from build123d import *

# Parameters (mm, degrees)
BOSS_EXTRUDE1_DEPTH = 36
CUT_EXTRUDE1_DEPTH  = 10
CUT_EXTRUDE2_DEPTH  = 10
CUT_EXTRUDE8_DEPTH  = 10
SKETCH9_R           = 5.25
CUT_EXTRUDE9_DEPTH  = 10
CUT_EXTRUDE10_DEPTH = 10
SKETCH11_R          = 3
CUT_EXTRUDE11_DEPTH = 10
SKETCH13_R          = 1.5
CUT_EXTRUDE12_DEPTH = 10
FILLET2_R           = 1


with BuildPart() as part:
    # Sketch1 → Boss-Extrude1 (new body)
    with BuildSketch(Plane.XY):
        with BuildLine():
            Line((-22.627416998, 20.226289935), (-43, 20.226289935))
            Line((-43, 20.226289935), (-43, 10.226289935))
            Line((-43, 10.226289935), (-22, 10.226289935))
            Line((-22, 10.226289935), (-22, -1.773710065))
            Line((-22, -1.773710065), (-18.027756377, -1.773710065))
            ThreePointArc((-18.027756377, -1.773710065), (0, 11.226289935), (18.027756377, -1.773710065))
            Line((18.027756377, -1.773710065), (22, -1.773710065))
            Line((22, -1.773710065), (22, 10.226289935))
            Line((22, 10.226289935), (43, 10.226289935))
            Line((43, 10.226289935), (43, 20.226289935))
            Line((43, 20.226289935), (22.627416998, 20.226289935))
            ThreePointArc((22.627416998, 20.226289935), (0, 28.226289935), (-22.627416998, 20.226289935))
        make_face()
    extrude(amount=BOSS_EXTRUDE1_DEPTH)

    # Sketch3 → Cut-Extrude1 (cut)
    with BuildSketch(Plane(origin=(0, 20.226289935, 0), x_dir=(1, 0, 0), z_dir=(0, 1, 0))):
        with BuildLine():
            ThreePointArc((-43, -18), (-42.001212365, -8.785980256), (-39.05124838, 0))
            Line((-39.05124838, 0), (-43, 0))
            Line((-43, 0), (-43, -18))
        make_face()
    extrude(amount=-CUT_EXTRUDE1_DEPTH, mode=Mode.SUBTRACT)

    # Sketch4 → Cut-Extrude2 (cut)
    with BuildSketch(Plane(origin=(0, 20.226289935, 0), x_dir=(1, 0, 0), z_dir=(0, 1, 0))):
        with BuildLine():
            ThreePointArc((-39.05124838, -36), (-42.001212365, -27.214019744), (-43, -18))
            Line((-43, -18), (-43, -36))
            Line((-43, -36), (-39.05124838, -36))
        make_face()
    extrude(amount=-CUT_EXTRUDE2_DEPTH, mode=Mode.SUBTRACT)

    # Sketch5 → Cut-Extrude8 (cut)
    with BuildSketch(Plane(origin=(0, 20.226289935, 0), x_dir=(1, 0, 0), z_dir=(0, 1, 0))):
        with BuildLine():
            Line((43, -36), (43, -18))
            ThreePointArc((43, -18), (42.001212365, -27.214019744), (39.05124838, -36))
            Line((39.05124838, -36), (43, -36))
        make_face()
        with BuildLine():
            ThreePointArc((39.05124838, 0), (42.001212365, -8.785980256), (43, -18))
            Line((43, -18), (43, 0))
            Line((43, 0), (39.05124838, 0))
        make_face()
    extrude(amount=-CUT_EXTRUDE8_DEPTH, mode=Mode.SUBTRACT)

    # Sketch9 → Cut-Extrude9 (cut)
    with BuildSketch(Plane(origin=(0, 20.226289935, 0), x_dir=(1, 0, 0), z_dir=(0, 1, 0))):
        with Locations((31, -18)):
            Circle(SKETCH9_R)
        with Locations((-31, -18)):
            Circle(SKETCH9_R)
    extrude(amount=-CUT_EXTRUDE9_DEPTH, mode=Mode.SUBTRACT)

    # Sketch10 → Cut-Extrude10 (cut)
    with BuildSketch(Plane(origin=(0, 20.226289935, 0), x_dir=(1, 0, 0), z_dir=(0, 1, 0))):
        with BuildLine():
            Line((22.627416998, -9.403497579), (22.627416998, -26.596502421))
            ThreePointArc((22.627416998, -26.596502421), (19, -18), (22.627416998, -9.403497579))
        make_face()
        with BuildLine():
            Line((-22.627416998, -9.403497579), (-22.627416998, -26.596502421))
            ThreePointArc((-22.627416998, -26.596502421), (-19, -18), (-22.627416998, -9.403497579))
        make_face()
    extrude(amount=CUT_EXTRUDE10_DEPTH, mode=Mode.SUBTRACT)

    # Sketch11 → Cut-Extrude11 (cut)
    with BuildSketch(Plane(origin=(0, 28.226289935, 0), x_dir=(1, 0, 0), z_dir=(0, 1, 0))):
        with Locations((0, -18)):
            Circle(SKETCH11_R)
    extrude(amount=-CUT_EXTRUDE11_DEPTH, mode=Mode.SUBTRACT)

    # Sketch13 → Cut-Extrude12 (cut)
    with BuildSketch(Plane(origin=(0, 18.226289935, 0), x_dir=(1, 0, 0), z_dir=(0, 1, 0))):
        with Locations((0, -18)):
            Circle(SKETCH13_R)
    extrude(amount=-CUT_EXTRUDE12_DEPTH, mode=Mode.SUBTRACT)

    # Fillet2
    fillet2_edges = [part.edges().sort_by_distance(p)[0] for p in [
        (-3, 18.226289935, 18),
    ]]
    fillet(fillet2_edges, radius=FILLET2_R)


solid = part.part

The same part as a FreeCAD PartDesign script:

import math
import FreeCAD as App
import Part
import Sketcher
Q = App.Units.Quantity


def edges_at(feature, points):
    """Names of the edges that pass closest to the given points."""
    edges = feature.Shape.Edges
    near = lambda p: min(range(len(edges)), key=lambda i: edges[i].distToShape(Part.Vertex(*p))[0])
    return sorted({f"Edge{near(p) + 1}" for p in points})

doc = App.newDocument("Part")
params = doc.addObject("Spreadsheet::Sheet", "Params")
for row, (alias, value) in enumerate([
    ("sketch1_radius", "19 mm"),
    ("sketch1_radius2", "36 mm"),
    ("sketch1_width", "21 mm"),
    ("sketch1_height", "10 mm"),
    ("sketch1_height2", "12 mm"),
    ("pad1_length", "36 mm"),
    ("sketch2_radius", "43 mm"),
    ("sketch2_height", "18 mm"),
    ("pocket1_length", "10 mm"),
    ("sketch3_radius", "43 mm"),
    ("sketch3_height", "18 mm"),
    ("pocket2_length", "10 mm"),
    ("sketch4_radius", "43 mm"),
    ("sketch4_height", "18 mm"),
    ("pocket3_length", "10 mm"),
    ("sketch5_diameter", "10.5 mm"),
    ("pocket4_length", "10 mm"),
    ("sketch6_radius", "12 mm"),
    ("pocket5_length", "10 mm"),
    ("sketch7_diameter", "6 mm"),
    ("pocket6_length", "10 mm"),
    ("sketch8_diameter", "3 mm"),
    ("pocket7_length", "10 mm"),
    ("fillet_radius", "1 mm"),
], start=1):
    params.set(f"A{row}", alias)
    params.set(f"B{row}", "=" + value)
    params.setAlias(f"B{row}", alias)

body = doc.addObject("PartDesign::Body", "Body")

sketch1 = body.newObject("Sketcher::SketchObject", "Sketch")
sketch1.AttachmentSupport = (doc.getObject("XY_Plane"), [""])
sketch1.MapMode = "FlatFace"
sketch1.addGeometry([
    Part.LineSegment(App.Vector(-22.6, 20.2, 0), App.Vector(-43, 20.2, 0)),
    Part.LineSegment(App.Vector(-43, 20.2, 0), App.Vector(-43, 10.2, 0)),
    Part.LineSegment(App.Vector(-43, 10.2, 0), App.Vector(-22, 10.2, 0)),
    Part.LineSegment(App.Vector(-22, 10.2, 0), App.Vector(-22, -1.8, 0)),
    Part.LineSegment(App.Vector(-22, -1.8, 0), App.Vector(-18, -1.8, 0)),
    Part.ArcOfCircle(Part.Circle(App.Vector(0, -7.8, 0), App.Vector(0, 0, 1), 19), math.radians(18), math.radians(162)),
    Part.LineSegment(App.Vector(18, -1.8, 0), App.Vector(22, -1.8, 0)),
    Part.LineSegment(App.Vector(22, -1.8, 0), App.Vector(22, 10.2, 0)),
    Part.LineSegment(App.Vector(22, 10.2, 0), App.Vector(43, 10.2, 0)),
    Part.LineSegment(App.Vector(43, 10.2, 0), App.Vector(43, 20.2, 0)),
    Part.LineSegment(App.Vector(43, 20.2, 0), App.Vector(22.6, 20.2, 0)),
    Part.ArcOfCircle(Part.Circle(App.Vector(0, -7.8, 0), App.Vector(0, 0, 1), 36), math.radians(51), math.radians(129)),
], False)
sketch1.addConstraint([
    Sketcher.Constraint("Coincident", 0, 2, 1, 1),
    Sketcher.Constraint("Coincident", 1, 2, 2, 1),
    Sketcher.Constraint("Coincident", 2, 2, 3, 1),
    Sketcher.Constraint("Coincident", 3, 2, 4, 1),
    Sketcher.Constraint("Coincident", 4, 2, 5, 2),
    Sketcher.Constraint("Coincident", 5, 1, 6, 1),
    Sketcher.Constraint("Coincident", 6, 2, 7, 1),
    Sketcher.Constraint("Coincident", 7, 2, 8, 1),
    Sketcher.Constraint("Coincident", 8, 2, 9, 1),
    Sketcher.Constraint("Coincident", 9, 2, 10, 1),
    Sketcher.Constraint("Coincident", 10, 2, 11, 1),
    Sketcher.Constraint("Coincident", 11, 2, 0, 1),
    Sketcher.Constraint("Horizontal", 0),
    Sketcher.Constraint("Vertical", 1),
    Sketcher.Constraint("Horizontal", 2),
    Sketcher.Constraint("Vertical", 3),
    Sketcher.Constraint("Horizontal", 4),
    Sketcher.Constraint("Horizontal", 6),
    Sketcher.Constraint("Vertical", 7),
    Sketcher.Constraint("Horizontal", 8),
    Sketcher.Constraint("Vertical", 9),
    Sketcher.Constraint("Horizontal", 10),
    Sketcher.Constraint("Coincident", 11, 3, 5, 3),
    Sketcher.Constraint("Symmetric", 4, 2, 5, 1, -2),
    Sketcher.Constraint("Symmetric", 2, 2, 7, 2, -2),
    Sketcher.Constraint("Symmetric", 0, 2, 9, 2, -2),
    Sketcher.Constraint("Radius", 5, Q("19 mm")),
    Sketcher.Constraint("Radius", 11, Q("36 mm")),
    Sketcher.Constraint("DistanceX", 2, 1, 2, 2, Q("21 mm")),
    Sketcher.Constraint("DistanceY", 1, 2, 1, 1, Q("10 mm")),
    Sketcher.Constraint("DistanceY", 3, 2, 3, 1, Q("12 mm")),
    Sketcher.Constraint("DistanceX", 0, 2, -1, 1, Q("43 mm")),
    Sketcher.Constraint("DistanceY", 5, 3, 0, 2, Q("28 mm")),
    Sketcher.Constraint("DistanceY", 5, 3, -1, 1, Q("7.77371 mm")),
])
sketch1.setExpression("Constraints[26]", "Params.sketch1_radius")
sketch1.setExpression("Constraints[27]", "Params.sketch1_radius2")
sketch1.setExpression("Constraints[28]", "Params.sketch1_width")
sketch1.setExpression("Constraints[29]", "Params.sketch1_height")
sketch1.setExpression("Constraints[30]", "Params.sketch1_height2")
pad1 = body.newObject("PartDesign::Pad", "Pad")
pad1.Profile = sketch1
pad1.setExpression("Length", "Params.pad1_length")

sketch2 = body.newObject("Sketcher::SketchObject", "Sketch001")
sketch2.AttachmentSupport = (doc.getObject("XZ_Plane"), [""])
sketch2.MapMode = "FlatFace"
sketch2.AttachmentOffset = App.Placement(App.Vector(0, 0, -20.22629), App.Rotation())
sketch2.addGeometry([
    Part.ArcOfCircle(Part.Circle(App.Vector(0, 18, 0), App.Vector(0, 0, 1), 43), math.radians(-180), math.radians(-155)),
    Part.LineSegment(App.Vector(-39.1, 0, 0), App.Vector(-43, 0, 0)),
    Part.LineSegment(App.Vector(-43, 0, 0), App.Vector(-43, 18, 0)),
], False)
sketch2.addConstraint([
    Sketcher.Constraint("Coincident", 0, 2, 1, 1),
    Sketcher.Constraint("Coincident", 1, 2, 2, 1),
    Sketcher.Constraint("Tangent", 2, 2, 0, 1),
    Sketcher.Constraint("Horizontal", 1),
    Sketcher.Constraint("Vertical", 2),
    Sketcher.Constraint("PointOnObject", 0, 3, -2),
    Sketcher.Constraint("PointOnObject", 0, 2, -1),
    Sketcher.Constraint("Radius", 0, Q("43 mm")),
    Sketcher.Constraint("DistanceY", 2, 1, 2, 2, Q("18 mm")),
])
sketch2.setExpression("Constraints[7]", "Params.sketch2_radius")
sketch2.setExpression("Constraints[8]", "Params.sketch2_height")
pocket1 = body.newObject("PartDesign::Pocket", "Pocket")
pocket1.Profile = sketch2
pocket1.setExpression("Length", "Params.pocket1_length")
pocket1.Reversed = True

sketch3 = body.newObject("Sketcher::SketchObject", "Sketch002")
sketch3.AttachmentSupport = (doc.getObject("XZ_Plane"), [""])
sketch3.MapMode = "FlatFace"
sketch3.AttachmentOffset = App.Placement(App.Vector(0, 0, -20.22629), App.Rotation())
sketch3.addGeometry([
    Part.ArcOfCircle(Part.Circle(App.Vector(0, 18, 0), App.Vector(0, 0, 1), 43), math.radians(155), math.radians(180)),
    Part.LineSegment(App.Vector(-43, 18, 0), App.Vector(-43, 36, 0)),
    Part.LineSegment(App.Vector(-43, 36, 0), App.Vector(-39.1, 36, 0)),
], False)
sketch3.addConstraint([
    Sketcher.Constraint("Tangent", 0, 2, 1, 1),
    Sketcher.Constraint("Coincident", 1, 2, 2, 1),
    Sketcher.Constraint("Coincident", 2, 2, 0, 1),
    Sketcher.Constraint("Vertical", 1),
    Sketcher.Constraint("Horizontal", 2),
    Sketcher.Constraint("PointOnObject", 0, 3, -2),
    Sketcher.Constraint("Radius", 0, Q("43 mm")),
    Sketcher.Constraint("DistanceY", 1, 1, 1, 2, Q("18 mm")),
    Sketcher.Constraint("DistanceY", -1, 1, 0, 3, Q("18 mm")),
])
sketch3.setExpression("Constraints[6]", "Params.sketch3_radius")
sketch3.setExpression("Constraints[7]", "Params.sketch3_height")
pocket2 = body.newObject("PartDesign::Pocket", "Pocket001")
pocket2.Profile = sketch3
pocket2.setExpression("Length", "Params.pocket2_length")
pocket2.Reversed = True

sketch4 = body.newObject("Sketcher::SketchObject", "Sketch003")
sketch4.AttachmentSupport = (doc.getObject("XZ_Plane"), [""])
sketch4.MapMode = "FlatFace"
sketch4.AttachmentOffset = App.Placement(App.Vector(0, 0, -20.22629), App.Rotation())
sketch4.addGeometry([
    Part.LineSegment(App.Vector(43, 36, 0), App.Vector(43, 18, 0)),
    Part.ArcOfCircle(Part.Circle(App.Vector(0, 18, 0), App.Vector(0, 0, 1), 43), math.radians(0), math.radians(25)),
    Part.LineSegment(App.Vector(39.1, 36, 0), App.Vector(43, 36, 0)),
    Part.ArcOfCircle(Part.Circle(App.Vector(0, 18, 0), App.Vector(0, 0, 1), 43), math.radians(-25), math.radians(0)),
    Part.LineSegment(App.Vector(43, 18, 0), App.Vector(43, 0, 0)),
    Part.LineSegment(App.Vector(43, 0, 0), App.Vector(39.1, 0, 0)),
], False)
sketch4.addConstraint([
    Sketcher.Constraint("Tangent", 0, 2, 1, 1),
    Sketcher.Constraint("Coincident", 1, 2, 2, 1),
    Sketcher.Constraint("Coincident", 2, 2, 0, 1),
    Sketcher.Constraint("Tangent", 3, 2, 4, 1),
    Sketcher.Constraint("Coincident", 4, 2, 5, 1),
    Sketcher.Constraint("Coincident", 5, 2, 3, 1),
    Sketcher.Constraint("Vertical", 0),
    Sketcher.Constraint("Horizontal", 2),
    Sketcher.Constraint("Vertical", 4),
    Sketcher.Constraint("Horizontal", 5),
    Sketcher.Constraint("Coincident", 3, 3, 1, 3),
    Sketcher.Constraint("Equal", 1, 3),
    Sketcher.Constraint("PointOnObject", 1, 3, -2),
    Sketcher.Constraint("PointOnObject", 4, 2, -1),
    Sketcher.Constraint("Vertical", 1, 2, 5, 2),
    Sketcher.Constraint("Radius", 1, Q("43 mm")),
    Sketcher.Constraint("DistanceY", 0, 2, 0, 1, Q("18 mm")),
])
sketch4.setExpression("Constraints[15]", "Params.sketch4_radius")
sketch4.setExpression("Constraints[16]", "Params.sketch4_height")
pocket3 = body.newObject("PartDesign::Pocket", "Pocket002")
pocket3.Profile = sketch4
pocket3.setExpression("Length", "Params.pocket3_length")
pocket3.Reversed = True

sketch5 = body.newObject("Sketcher::SketchObject", "Sketch004")
sketch5.AttachmentSupport = (doc.getObject("XZ_Plane"), [""])
sketch5.MapMode = "FlatFace"
sketch5.AttachmentOffset = App.Placement(App.Vector(0, 0, -20.22629), App.Rotation())
sketch5.addGeometry([
    Part.Circle(App.Vector(31, 18, 0), App.Vector(0, 0, 1), 5),
    Part.Circle(App.Vector(-31, 18, 0), App.Vector(0, 0, 1), 5),
], False)
sketch5.addConstraint([
    Sketcher.Constraint("Equal", 0, 1),
    Sketcher.Constraint("Symmetric", 0, 3, 1, 3, -2),
    Sketcher.Constraint("Diameter", 0, Q("10.5 mm")),
    Sketcher.Constraint("DistanceX", -1, 1, 0, 3, Q("31 mm")),
    Sketcher.Constraint("DistanceY", -1, 1, 0, 3, Q("18 mm")),
])
sketch5.setExpression("Constraints[2]", "Params.sketch5_diameter")
pocket4 = body.newObject("PartDesign::Pocket", "Pocket003")
pocket4.Profile = sketch5
pocket4.setExpression("Length", "Params.pocket4_length")
pocket4.Reversed = True

sketch6 = body.newObject("Sketcher::SketchObject", "Sketch005")
sketch6.AttachmentSupport = (doc.getObject("XZ_Plane"), [""])
sketch6.MapMode = "FlatFace"
sketch6.AttachmentOffset = App.Placement(App.Vector(0, 0, -20.22629), App.Rotation())
sketch6.addGeometry([
    Part.LineSegment(App.Vector(23, 27, 0), App.Vector(23, 9, 0)),
    Part.ArcOfCircle(Part.Circle(App.Vector(31, 18, 0), App.Vector(0, 0, 1), 12), math.radians(134), math.radians(226)),
    Part.LineSegment(App.Vector(-23, 9, 0), App.Vector(-23, 27, 0)),
    Part.ArcOfCircle(Part.Circle(App.Vector(-31, 18, 0), App.Vector(0, 0, 1), 12), math.radians(-46), math.radians(46)),
], False)
sketch6.addConstraint([
    Sketcher.Constraint("Coincident", 0, 1, 1, 1),
    Sketcher.Constraint("Coincident", 1, 2, 0, 2),
    Sketcher.Constraint("Coincident", 2, 1, 3, 1),
    Sketcher.Constraint("Coincident", 3, 2, 2, 2),
    Sketcher.Constraint("Vertical", 0),
    Sketcher.Constraint("Vertical", 2),
    Sketcher.Constraint("Equal", 1, 3),
    Sketcher.Constraint("Symmetric", 1, 3, 3, 3, -2),
    Sketcher.Constraint("Horizontal", 1, 2, 2, 1),
    Sketcher.Constraint("Radius", 1, Q("12 mm")),
    Sketcher.Constraint("DistanceX", -1, 1, 1, 3, Q("31 mm")),
    Sketcher.Constraint("DistanceY", -1, 1, 1, 3, Q("18 mm")),
    Sketcher.Constraint("DistanceY", 0, 2, 0, 1, Q("17.193005 mm")),
])
sketch6.setExpression("Constraints[9]", "Params.sketch6_radius")
pocket5 = body.newObject("PartDesign::Pocket", "Pocket004")
pocket5.Profile = sketch6
pocket5.setExpression("Length", "Params.pocket5_length")

sketch7 = body.newObject("Sketcher::SketchObject", "Sketch006")
sketch7.AttachmentSupport = (doc.getObject("XZ_Plane"), [""])
sketch7.MapMode = "FlatFace"
sketch7.AttachmentOffset = App.Placement(App.Vector(0, 0, -28.22629), App.Rotation())
sketch7.addGeometry(Part.Circle(App.Vector(0, 18, 0), App.Vector(0, 0, 1), 3), False)
sketch7.addConstraint([
    Sketcher.Constraint("PointOnObject", 0, 3, -2),
    Sketcher.Constraint("Diameter", 0, Q("6 mm")),
    Sketcher.Constraint("DistanceY", -1, 1, 0, 3, Q("18 mm")),
])
sketch7.setExpression("Constraints[1]", "Params.sketch7_diameter")
pocket6 = body.newObject("PartDesign::Pocket", "Pocket005")
pocket6.Profile = sketch7
pocket6.setExpression("Length", "Params.pocket6_length")
pocket6.Reversed = True

sketch8 = body.newObject("Sketcher::SketchObject", "Sketch007")
sketch8.AttachmentSupport = (doc.getObject("XZ_Plane"), [""])
sketch8.MapMode = "FlatFace"
sketch8.AttachmentOffset = App.Placement(App.Vector(0, 0, -18.22629), App.Rotation())
sketch8.addGeometry(Part.Circle(App.Vector(0, 18, 0), App.Vector(0, 0, 1), 1.5), False)
sketch8.addConstraint([
    Sketcher.Constraint("PointOnObject", 0, 3, -2),
    Sketcher.Constraint("Diameter", 0, Q("3 mm")),
    Sketcher.Constraint("DistanceY", -1, 1, 0, 3, Q("18 mm")),
])
sketch8.setExpression("Constraints[1]", "Params.sketch8_diameter")
pocket7 = body.newObject("PartDesign::Pocket", "Pocket006")
pocket7.Profile = sketch8
pocket7.setExpression("Length", "Params.pocket7_length")
pocket7.Reversed = True
doc.recompute()

fillet = body.newObject("PartDesign::Fillet", "Fillet")
fillet.Base = (pocket7, edges_at(pocket7, [(-3, 18.226, 18)]))
fillet.setExpression("Radius", "Params.fillet_radius")

doc.recompute()
